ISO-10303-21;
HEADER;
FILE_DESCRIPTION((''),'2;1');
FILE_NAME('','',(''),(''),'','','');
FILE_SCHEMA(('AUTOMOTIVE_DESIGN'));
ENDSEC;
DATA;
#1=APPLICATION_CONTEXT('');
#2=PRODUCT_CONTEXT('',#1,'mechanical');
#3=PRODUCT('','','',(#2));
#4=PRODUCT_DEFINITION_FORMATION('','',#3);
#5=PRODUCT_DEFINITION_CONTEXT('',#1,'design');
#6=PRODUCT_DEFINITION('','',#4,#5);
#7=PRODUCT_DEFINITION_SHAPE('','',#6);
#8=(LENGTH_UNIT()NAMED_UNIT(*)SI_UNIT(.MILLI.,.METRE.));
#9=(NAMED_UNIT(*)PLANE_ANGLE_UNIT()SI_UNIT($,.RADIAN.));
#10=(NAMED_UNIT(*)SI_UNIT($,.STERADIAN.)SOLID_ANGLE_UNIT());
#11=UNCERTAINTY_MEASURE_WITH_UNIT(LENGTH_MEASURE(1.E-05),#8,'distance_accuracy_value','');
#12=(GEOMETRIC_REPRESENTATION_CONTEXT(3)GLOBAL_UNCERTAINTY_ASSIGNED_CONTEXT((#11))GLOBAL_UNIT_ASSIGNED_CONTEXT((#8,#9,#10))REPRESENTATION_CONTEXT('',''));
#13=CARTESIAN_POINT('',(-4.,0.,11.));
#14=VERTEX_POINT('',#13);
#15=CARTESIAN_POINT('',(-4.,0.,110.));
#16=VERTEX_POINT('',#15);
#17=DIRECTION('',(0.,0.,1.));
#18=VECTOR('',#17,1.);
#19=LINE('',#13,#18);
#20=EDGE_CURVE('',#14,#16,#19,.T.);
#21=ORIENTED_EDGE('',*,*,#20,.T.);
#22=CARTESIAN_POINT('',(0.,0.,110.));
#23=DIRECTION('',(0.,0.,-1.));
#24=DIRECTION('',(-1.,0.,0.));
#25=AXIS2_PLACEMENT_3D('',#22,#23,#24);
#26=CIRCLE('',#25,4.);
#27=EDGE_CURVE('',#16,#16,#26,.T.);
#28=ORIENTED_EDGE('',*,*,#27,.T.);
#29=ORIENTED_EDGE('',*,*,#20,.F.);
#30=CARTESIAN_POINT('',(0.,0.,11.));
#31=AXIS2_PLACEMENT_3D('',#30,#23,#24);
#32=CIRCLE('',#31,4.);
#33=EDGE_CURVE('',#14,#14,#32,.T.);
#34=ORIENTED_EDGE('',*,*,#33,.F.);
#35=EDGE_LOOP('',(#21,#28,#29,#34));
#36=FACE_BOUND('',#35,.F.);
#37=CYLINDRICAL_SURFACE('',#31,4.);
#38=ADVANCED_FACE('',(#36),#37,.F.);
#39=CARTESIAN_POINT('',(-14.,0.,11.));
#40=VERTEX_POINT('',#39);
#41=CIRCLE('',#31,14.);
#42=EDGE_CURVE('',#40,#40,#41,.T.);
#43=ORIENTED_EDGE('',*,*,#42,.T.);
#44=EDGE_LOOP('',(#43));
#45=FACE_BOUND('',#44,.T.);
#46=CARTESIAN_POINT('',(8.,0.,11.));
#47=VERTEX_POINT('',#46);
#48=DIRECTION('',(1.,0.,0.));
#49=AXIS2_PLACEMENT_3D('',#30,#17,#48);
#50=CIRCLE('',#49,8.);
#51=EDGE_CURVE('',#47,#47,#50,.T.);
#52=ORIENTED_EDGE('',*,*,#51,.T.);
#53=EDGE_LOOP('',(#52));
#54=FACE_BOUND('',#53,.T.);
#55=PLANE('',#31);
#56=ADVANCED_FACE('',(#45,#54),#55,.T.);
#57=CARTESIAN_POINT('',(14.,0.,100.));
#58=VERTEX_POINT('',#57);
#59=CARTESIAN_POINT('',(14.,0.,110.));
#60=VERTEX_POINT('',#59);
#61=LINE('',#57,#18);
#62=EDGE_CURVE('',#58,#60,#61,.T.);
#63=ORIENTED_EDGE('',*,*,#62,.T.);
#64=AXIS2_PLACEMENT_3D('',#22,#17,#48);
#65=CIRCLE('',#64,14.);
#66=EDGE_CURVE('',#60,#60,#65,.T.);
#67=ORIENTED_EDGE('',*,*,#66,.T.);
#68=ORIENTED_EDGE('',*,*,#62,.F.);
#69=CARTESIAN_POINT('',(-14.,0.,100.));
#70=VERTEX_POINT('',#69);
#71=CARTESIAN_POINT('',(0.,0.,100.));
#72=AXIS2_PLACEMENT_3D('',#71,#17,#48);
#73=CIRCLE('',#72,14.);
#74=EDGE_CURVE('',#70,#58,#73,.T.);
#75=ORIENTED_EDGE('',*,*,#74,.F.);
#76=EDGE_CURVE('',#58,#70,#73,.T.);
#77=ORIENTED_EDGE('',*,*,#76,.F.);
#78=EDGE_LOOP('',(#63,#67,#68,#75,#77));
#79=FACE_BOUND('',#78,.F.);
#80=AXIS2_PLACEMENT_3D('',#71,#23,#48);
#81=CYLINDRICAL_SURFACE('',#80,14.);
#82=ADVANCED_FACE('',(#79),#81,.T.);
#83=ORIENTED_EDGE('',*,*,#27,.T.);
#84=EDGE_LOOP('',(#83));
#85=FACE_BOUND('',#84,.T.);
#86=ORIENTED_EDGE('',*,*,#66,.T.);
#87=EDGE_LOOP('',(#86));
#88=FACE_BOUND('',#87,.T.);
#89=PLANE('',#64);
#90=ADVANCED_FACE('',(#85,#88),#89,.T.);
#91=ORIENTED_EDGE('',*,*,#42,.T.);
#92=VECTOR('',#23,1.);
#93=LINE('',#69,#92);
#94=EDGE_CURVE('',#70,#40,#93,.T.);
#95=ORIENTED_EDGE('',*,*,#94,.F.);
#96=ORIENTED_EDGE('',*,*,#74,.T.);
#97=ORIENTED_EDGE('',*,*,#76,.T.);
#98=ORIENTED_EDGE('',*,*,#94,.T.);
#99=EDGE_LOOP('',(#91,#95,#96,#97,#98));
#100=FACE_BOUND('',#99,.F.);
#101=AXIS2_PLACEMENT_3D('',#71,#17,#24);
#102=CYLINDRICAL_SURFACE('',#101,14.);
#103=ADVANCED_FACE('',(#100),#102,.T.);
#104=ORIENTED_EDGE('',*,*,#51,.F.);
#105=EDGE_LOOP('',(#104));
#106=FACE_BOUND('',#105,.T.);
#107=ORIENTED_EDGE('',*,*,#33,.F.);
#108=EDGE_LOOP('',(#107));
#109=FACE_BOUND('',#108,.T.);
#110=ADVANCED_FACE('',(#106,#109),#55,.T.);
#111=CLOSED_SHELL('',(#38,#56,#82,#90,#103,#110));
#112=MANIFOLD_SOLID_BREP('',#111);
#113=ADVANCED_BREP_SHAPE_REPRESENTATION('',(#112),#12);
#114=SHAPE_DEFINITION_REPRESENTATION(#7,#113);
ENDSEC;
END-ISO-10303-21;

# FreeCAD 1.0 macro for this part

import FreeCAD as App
import Part
import Sketcher

V = App.Vector

doc = App.newDocument("Part")
body = doc.addObject("PartDesign::Body", "Body")

sketch1 = body.newObject("Sketcher::SketchObject", "Sketch")
sketch1.AttachmentSupport = (doc.getObject("XY_Plane"), [""])
sketch1.MapMode = "FlatFace"
sketch1.addGeometry(Part.Circle(V(0, 0, 0), V(0, 0, 1), 8), False)
sketch1.addConstraint([
    Sketcher.Constraint("Coincident", 0, 3, -1, 1),
    Sketcher.Constraint("Diameter", 0, 16.0),
])
pad1 = body.newObject("PartDesign::Pad", "Pad")
pad1.Profile = sketch1
pad1.Length = 100

sketch2 = body.newObject("Sketcher::SketchObject", "Sketch001")
sketch2.AttachmentSupport = (doc.getObject("XY_Plane"), [""])
sketch2.MapMode = "FlatFace"
sketch2.AttachmentOffset = App.Placement(V(0, 0, 100), App.Rotation())
sketch2.addGeometry(Part.Circle(V(0, 0, 0), V(0, 0, 1), 14), False)
sketch2.addConstraint([
    Sketcher.Constraint("Coincident", 0, 3, -1, 1),
    Sketcher.Constraint("Diameter", 0, 28.0),
])
pad2 = body.newObject("PartDesign::Pad", "Pad001")
pad2.Profile = sketch2
pad2.Length = 10

sketch3 = body.newObject("Sketcher::SketchObject", "Sketch002")
sketch3.AttachmentSupport = (doc.getObject("XY_Plane"), [""])
sketch3.MapMode = "FlatFace"
sketch3.addGeometry(Part.Circle(V(0, 0, 0), V(0, 0, 1), 8), False)
sketch3.addConstraint([
    Sketcher.Constraint("Coincident", 0, 3, -1, 1),
    Sketcher.Constraint("Diameter", 0, 16.0),
])
pocket1 = body.newObject("PartDesign::Pocket", "Pocket")
pocket1.Profile = sketch3
pocket1.Length = 8
pocket1.Reversed = True

sketch4 = body.newObject("Sketcher::SketchObject", "Sketch003")
sketch4.AttachmentSupport = (doc.getObject("XY_Plane"), [""])
sketch4.MapMode = "FlatFace"
sketch4.AttachmentOffset = App.Placement(V(0, 0, 8), App.Rotation())
sketch4.addGeometry(Part.Circle(V(0, 0, 0), V(0, 0, 1), 8), False)
sketch4.addConstraint([
    Sketcher.Constraint("Coincident", 0, 3, -1, 1),
    Sketcher.Constraint("Diameter", 0, 16.0),
])
pocket2 = body.newObject("PartDesign::Pocket", "Pocket001")
pocket2.Profile = sketch4
pocket2.Length = 3
pocket2.Reversed = True

sketch5 = body.newObject("Sketcher::SketchObject", "Sketch004")
sketch5.AttachmentSupport = (doc.getObject("XY_Plane"), [""])
sketch5.MapMode = "FlatFace"
sketch5.AttachmentOffset = App.Placement(V(0, 0, 100), App.Rotation())
sketch5.addGeometry(Part.Circle(V(0, 0, 0), V(0, 0, 1), 14), False)
sketch5.addConstraint([
    Sketcher.Constraint("Coincident", 0, 3, -1, 1),
    Sketcher.Constraint("Diameter", 0, 28.0),
])
pad3 = body.newObject("PartDesign::Pad", "Pad002")
pad3.Profile = sketch5
pad3.Length = 89
pad3.Reversed = True

sketch6 = body.newObject("Sketcher::SketchObject", "Sketch005")
sketch6.AttachmentSupport = (doc.getObject("XY_Plane"), [""])
sketch6.MapMode = "FlatFace"
sketch6.AttachmentOffset = App.Placement(V(0, 0, 11), App.Rotation())
sketch6.addGeometry(Part.Circle(V(0, 0, 0), V(0, 0, 1), 4), False)
sketch6.addConstraint([
    Sketcher.Constraint("Coincident", 0, 3, -1, 1),
    Sketcher.Constraint("Diameter", 0, 8.0),
])
pocket3 = body.newObject("PartDesign::Pocket", "Pocket002")
pocket3.Profile = sketch6
pocket3.Length = 100
pocket3.Reversed = True

doc.recompute()
